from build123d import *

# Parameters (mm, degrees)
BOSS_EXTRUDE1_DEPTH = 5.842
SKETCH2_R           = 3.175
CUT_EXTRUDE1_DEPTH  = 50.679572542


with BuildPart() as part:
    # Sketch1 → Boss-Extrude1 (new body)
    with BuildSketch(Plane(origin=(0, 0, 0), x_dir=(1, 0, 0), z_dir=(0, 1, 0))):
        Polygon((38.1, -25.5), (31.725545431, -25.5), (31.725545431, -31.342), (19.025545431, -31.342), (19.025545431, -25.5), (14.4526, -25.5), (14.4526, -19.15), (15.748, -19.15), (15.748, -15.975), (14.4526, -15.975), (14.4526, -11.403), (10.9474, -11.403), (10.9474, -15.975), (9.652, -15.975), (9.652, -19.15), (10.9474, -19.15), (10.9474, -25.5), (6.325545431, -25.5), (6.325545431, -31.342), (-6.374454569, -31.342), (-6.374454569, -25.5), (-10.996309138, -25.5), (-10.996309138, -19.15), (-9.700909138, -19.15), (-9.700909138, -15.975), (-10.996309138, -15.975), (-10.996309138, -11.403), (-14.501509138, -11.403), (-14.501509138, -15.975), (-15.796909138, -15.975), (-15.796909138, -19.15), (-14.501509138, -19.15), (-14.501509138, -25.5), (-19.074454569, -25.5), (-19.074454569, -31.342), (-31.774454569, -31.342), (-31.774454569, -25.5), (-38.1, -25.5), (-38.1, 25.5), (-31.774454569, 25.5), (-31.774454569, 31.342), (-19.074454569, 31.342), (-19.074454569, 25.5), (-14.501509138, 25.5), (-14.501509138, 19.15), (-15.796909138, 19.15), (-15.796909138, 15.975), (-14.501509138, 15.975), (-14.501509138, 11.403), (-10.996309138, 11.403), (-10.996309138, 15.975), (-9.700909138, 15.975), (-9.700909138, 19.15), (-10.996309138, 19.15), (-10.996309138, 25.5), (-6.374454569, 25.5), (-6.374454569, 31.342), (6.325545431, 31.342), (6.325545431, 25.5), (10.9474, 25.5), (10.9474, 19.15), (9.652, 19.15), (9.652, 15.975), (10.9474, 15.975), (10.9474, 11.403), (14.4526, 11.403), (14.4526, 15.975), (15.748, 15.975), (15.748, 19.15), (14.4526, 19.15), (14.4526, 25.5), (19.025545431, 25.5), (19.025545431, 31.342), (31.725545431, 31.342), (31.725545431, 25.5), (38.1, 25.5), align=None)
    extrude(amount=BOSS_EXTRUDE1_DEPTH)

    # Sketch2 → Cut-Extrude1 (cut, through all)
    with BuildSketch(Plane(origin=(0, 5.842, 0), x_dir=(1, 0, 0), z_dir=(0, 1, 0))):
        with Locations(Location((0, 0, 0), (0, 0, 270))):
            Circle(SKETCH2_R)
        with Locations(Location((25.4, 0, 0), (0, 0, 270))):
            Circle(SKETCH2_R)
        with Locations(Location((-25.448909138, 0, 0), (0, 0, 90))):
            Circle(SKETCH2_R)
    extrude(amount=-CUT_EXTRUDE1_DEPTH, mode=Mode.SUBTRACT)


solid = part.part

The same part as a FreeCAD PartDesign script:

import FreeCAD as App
import Part
import Sketcher

V = App.Vector
Q = App.Units.Quantity


def add_polygon(sketch, points):
    """Adds a closed chain of lines whose ends are joined by coincident constraints."""
    first, n = sketch.GeometryCount, len(points)
    for a, b in zip(points, points[1:] + points[:1]):
        sketch.addGeometry(Part.LineSegment(App.Vector(*a, 0), App.Vector(*b, 0)), False)
    for i in range(n):
        sketch.addConstraint(Sketcher.Constraint("Coincident", first + i, 2, first + (i + 1) % n, 1))

doc = App.newDocument("Part")
body = doc.addObject("PartDesign::Body", "Body")

# Sketch on XZ plane
sketch1 = body.newObject("Sketcher::SketchObject", "Sketch")
sketch1.AttachmentSupport = (doc.getObject("XZ_Plane"), [""])
sketch1.MapMode = "FlatFace"
add_polygon(sketch1, [(31.7, 25.5), (38.1, 25.5), (38.1, -25.5), (31.7, -25.5), (31.7, -31.3), (19, -31.3), (19, -25.5), (14.5, -25.5), (14.5, -19.1), (15.7, -19.1), (15.7, -16), (14.5, -16), (14.5, -11.4), (10.9, -11.4), (10.9, -16), (9.7, -16), (9.7, -19.1), (10.9, -19.1), (10.9, -25.5), (6.3, -25.5), (6.3, -31.3), (-6.4, -31.3), (-6.4, -25.5), (-11, -25.5), (-11, -19.1), (-9.7, -19.1), (-9.7, -16), (-11, -16), (-11, -11.4), (-14.5, -11.4), (-14.5, -16), (-15.8, -16), (-15.8, -19.1), (-14.5, -19.1), (-14.5, -25.5), (-19.1, -25.5), (-19.1, -31.3), (-31.8, -31.3), (-31.8, -25.5), (-38.1, -25.5), (-38.1, 25.5), (-31.8, 25.5), (-31.8, 31.3), (-19.1, 31.3), (-19.1, 25.5), (-14.5, 25.5), (-14.5, 19.1), (-15.8, 19.1), (-15.8, 16), (-14.5, 16), (-14.5, 11.4), (-11, 11.4), (-11, 16), (-9.7, 16), (-9.7, 19.1), (-11, 19.1), (-11, 25.5), (-6.4, 25.5), (-6.4, 31.3), (6.3, 31.3), (6.3, 25.5), (10.9, 25.5), (10.9, 19.1), (9.7, 19.1), (9.7, 16), (10.9, 16), (10.9, 11.4), (14.5, 11.4), (14.5, 16), (15.7, 16), (15.7, 19.1), (14.5, 19.1), (14.5, 25.5), (19, 25.5), (19, 31.3), (31.7, 31.3)])  # lines 0-75
sketch1.addConstraint(Sketcher.Constraint("Horizontal", 0))
sketch1.addConstraint(Sketcher.Constraint("Vertical", 1))
sketch1.addConstraint(Sketcher.Constraint("Horizontal", 2))
sketch1.addConstraint(Sketcher.Constraint("Vertical", 3))
sketch1.addConstraint(Sketcher.Constraint("Horizontal", 4))
sketch1.addConstraint(Sketcher.Constraint("Vertical", 5))
sketch1.addConstraint(Sketcher.Constraint("Horizontal", 6))
sketch1.addConstraint(Sketcher.Constraint("Vertical", 7))
sketch1.addConstraint(Sketcher.Constraint("Horizontal", 8))
sketch1.addConstraint(Sketcher.Constraint("Vertical", 9))
sketch1.addConstraint(Sketcher.Constraint("Horizontal", 10))
sketch1.addConstraint(Sketcher.Constraint("Vertical", 11))
sketch1.addConstraint(Sketcher.Constraint("Horizontal", 12))
sketch1.addConstraint(Sketcher.Constraint("Vertical", 13))
sketch1.addConstraint(Sketcher.Constraint("Horizontal", 14))
sketch1.addConstraint(Sketcher.Constraint("Vertical", 15))
sketch1.addConstraint(Sketcher.Constraint("Horizontal", 16))
sketch1.addConstraint(Sketcher.Constraint("Vertical", 17))
sketch1.addConstraint(Sketcher.Constraint("Horizontal", 18))
sketch1.addConstraint(Sketcher.Constraint("Vertical", 19))
sketch1.addConstraint(Sketcher.Constraint("Horizontal", 20))
sketch1.addConstraint(Sketcher.Constraint("Vertical", 21))
sketch1.addConstraint(Sketcher.Constraint("Horizontal", 22))
sketch1.addConstraint(Sketcher.Constraint("Vertical", 23))
sketch1.addConstraint(Sketcher.Constraint("Horizontal", 24))
sketch1.addConstraint(Sketcher.Constraint("Vertical", 25))
sketch1.addConstraint(Sketcher.Constraint("Horizontal", 26))
sketch1.addConstraint(Sketcher.Constraint("Vertical", 27))
sketch1.addConstraint(Sketcher.Constraint("Horizontal", 28))
sketch1.addConstraint(Sketcher.Constraint("Vertical", 29))
sketch1.addConstraint(Sketcher.Constraint("Horizontal", 30))
sketch1.addConstraint(Sketcher.Constraint("Vertical", 31))
sketch1.addConstraint(Sketcher.Constraint("Horizontal", 32))
sketch1.addConstraint(Sketcher.Constraint("Vertical", 33))
sketch1.addConstraint(Sketcher.Constraint("Horizontal", 34))
sketch1.addConstraint(Sketcher.Constraint("Vertical", 35))
sketch1.addConstraint(Sketcher.Constraint("Horizontal", 36))
sketch1.addConstraint(Sketcher.Constraint("Vertical", 37))
sketch1.addConstraint(Sketcher.Constraint("Horizontal", 38))
sketch1.addConstraint(Sketcher.Constraint("Vertical", 39))
sketch1.addConstraint(Sketcher.Constraint("Horizontal", 40))
sketch1.addConstraint(Sketcher.Constraint("Vertical", 41))
sketch1.addConstraint(Sketcher.Constraint("Horizontal", 42))
sketch1.addConstraint(Sketcher.Constraint("Vertical", 43))
sketch1.addConstraint(Sketcher.Constraint("Horizontal", 44))
sketch1.addConstraint(Sketcher.Constraint("Vertical", 45))
sketch1.addConstraint(Sketcher.Constraint("Horizontal", 46))
sketch1.addConstraint(Sketcher.Constraint("Vertical", 47))
sketch1.addConstraint(Sketcher.Constraint("Horizontal", 48))
sketch1.addConstraint(Sketcher.Constraint("Vertical", 49))
sketch1.addConstraint(Sketcher.Constraint("Horizontal", 50))
sketch1.addConstraint(Sketcher.Constraint("Vertical", 51))
sketch1.addConstraint(Sketcher.Constraint("Horizontal", 52))
sketch1.addConstraint(Sketcher.Constraint("Vertical", 53))
sketch1.addConstraint(Sketcher.Constraint("Horizontal", 54))
sketch1.addConstraint(Sketcher.Constraint("Vertical", 55))
sketch1.addConstraint(Sketcher.Constraint("Horizontal", 56))
sketch1.addConstraint(Sketcher.Constraint("Vertical", 57))
sketch1.addConstraint(Sketcher.Constraint("Horizontal", 58))
sketch1.addConstraint(Sketcher.Constraint("Vertical", 59))
sketch1.addConstraint(Sketcher.Constraint("Horizontal", 60))
sketch1.addConstraint(Sketcher.Constraint("Vertical", 61))
sketch1.addConstraint(Sketcher.Constraint("Horizontal", 62))
sketch1.addConstraint(Sketcher.Constraint("Vertical", 63))
sketch1.addConstraint(Sketcher.Constraint("Horizontal", 64))
sketch1.addConstraint(Sketcher.Constraint("Vertical", 65))
sketch1.addConstraint(Sketcher.Constraint("Horizontal", 66))
sketch1.addConstraint(Sketcher.Constraint("Vertical", 67))
sketch1.addConstraint(Sketcher.Constraint("Horizontal", 68))
sketch1.addConstraint(Sketcher.Constraint("Vertical", 69))
sketch1.addConstraint(Sketcher.Constraint("Horizontal", 70))
sketch1.addConstraint(Sketcher.Constraint("Vertical", 71))
sketch1.addConstraint(Sketcher.Constraint("Horizontal", 72))
sketch1.addConstraint(Sketcher.Constraint("Vertical", 73))
sketch1.addConstraint(Sketcher.Constraint("Horizontal", 74))
sketch1.addConstraint(Sketcher.Constraint("Vertical", 75))
sketch1.addConstraint(Sketcher.Constraint("Symmetric", 0, 2, 38, 2, -1, 1))
sketch1.addConstraint(Sketcher.Constraint("Symmetric", 37, 2, 40, 2, -1))
sketch1.addConstraint(Sketcher.Constraint("Symmetric", 35, 2, 42, 2, -1))
sketch1.addConstraint(Sketcher.Constraint("Symmetric", 33, 2, 44, 2, -1))
sketch1.addConstraint(Sketcher.Constraint("Symmetric", 31, 2, 46, 2, -1))
sketch1.addConstraint(Sketcher.Constraint("Symmetric", 29, 2, 48, 2, -1))
sketch1.addConstraint(Sketcher.Constraint("Symmetric", 27, 2, 50, 2, -1))
sketch1.addConstraint(Sketcher.Constraint("Symmetric", 25, 2, 52, 2, -1))
sketch1.addConstraint(Sketcher.Constraint("Symmetric", 23, 2, 54, 2, -1))
sketch1.addConstraint(Sketcher.Constraint("Symmetric", 21, 2, 56, 2, -1))
sketch1.addConstraint(Sketcher.Constraint("Symmetric", 19, 2, 58, 2, -1))
sketch1.addConstraint(Sketcher.Constraint("Symmetric", 17, 2, 60, 2, -1))
sketch1.addConstraint(Sketcher.Constraint("Symmetric", 15, 2, 62, 2, -1))
sketch1.addConstraint(Sketcher.Constraint("Symmetric", 13, 2, 64, 2, -1))
sketch1.addConstraint(Sketcher.Constraint("Symmetric", 11, 2, 66, 2, -1))
sketch1.addConstraint(Sketcher.Constraint("Symmetric", 9, 2, 68, 2, -1))
sketch1.addConstraint(Sketcher.Constraint("Symmetric", 7, 2, 70, 2, -1))
sketch1.addConstraint(Sketcher.Constraint("Symmetric", 5, 2, 72, 2, -1))
sketch1.addConstraint(Sketcher.Constraint("Symmetric", 3, 2, 74, 2, -1))
sketch1.addConstraint(Sketcher.Constraint("Horizontal", 2, 2, 5, 2))
sketch1.addConstraint(Sketcher.Constraint("Horizontal", 10, 2, 13, 2))
sketch1.addConstraint(Sketcher.Constraint("Horizontal", 8, 2, 15, 2))
sketch1.addConstraint(Sketcher.Constraint("Horizontal", 6, 2, 17, 2))
sketch1.addConstraint(Sketcher.Constraint("Horizontal", 4, 2, 19, 2))
sketch1.addConstraint(Sketcher.Constraint("Horizontal", 18, 2, 21, 2))
sketch1.addConstraint(Sketcher.Constraint("Horizontal", 16, 2, 23, 2))
sketch1.addConstraint(Sketcher.Constraint("Horizontal", 14, 2, 25, 2))
sketch1.addConstraint(Sketcher.Constraint("Horizontal", 12, 2, 27, 2))
sketch1.addConstraint(Sketcher.Constraint("Horizontal", 26, 2, 29, 2))
sketch1.addConstraint(Sketcher.Constraint("Horizontal", 24, 2, 31, 2))
sketch1.addConstraint(Sketcher.Constraint("Horizontal", 22, 2, 33, 2))
sketch1.addConstraint(Sketcher.Constraint("Horizontal", 20, 2, 35, 2))
sketch1.addConstraint(Sketcher.Constraint("Horizontal", 34, 2, 37, 2))
sketch1.addConstraint(Sketcher.Constraint("Vertical", 7, 2, 10, 2))
sketch1.addConstraint(Sketcher.Constraint("Vertical", 13, 2, 16, 2))
sketch1.addConstraint(Sketcher.Constraint("Vertical", 23, 2, 26, 2))
sketch1.addConstraint(Sketcher.Constraint("Vertical", 29, 2, 32, 2))
sketch1.addConstraint(Sketcher.Constraint("Equal", 10, 14))
sketch1.addConstraint(Sketcher.Constraint("Equal", 4, 20))
sketch1.addConstraint(Sketcher.Constraint("Equal", 18, 22))
sketch1.addConstraint(Sketcher.Constraint("Equal", 16, 24))
sketch1.addConstraint(Sketcher.Constraint("Equal", 12, 28))
sketch1.addConstraint(Sketcher.Constraint("Equal", 26, 30))
sketch1.addConstraint(Sketcher.Constraint("Equal", 6, 34))
sketch1.addConstraint(Sketcher.Constraint("Equal", 20, 36))
sketch1.addConstraint(Sketcher.Constraint("DistanceX", 4, 2, 4, 1, Q("0.5 in")))
sketch1.addConstraint(Sketcher.Constraint("DistanceY", 3, 2, 3, 1, Q("0.23 in")))
sketch1.addConstraint(Sketcher.Constraint("DistanceY", 7, 1, 7, 2, Q("0.25 in")))
sketch1.addConstraint(Sketcher.Constraint("DistanceY", 11, 1, 11, 2, Q("0.18 in")))
sketch1.addConstraint(Sketcher.Constraint("DistanceX", -1, 1, 0, 2, Q("1.5 in")))
sketch1.addConstraint(Sketcher.Constraint("DistanceX", 8, 1, 8, 2, Q("0.051 in")))
sketch1.addConstraint(Sketcher.Constraint("DistanceX", 12, 2, 12, 1, Q("0.138 in")))
sketch1.addConstraint(Sketcher.Constraint("DistanceY", 9, 1, 9, 2, Q("0.125 in")))
sketch1.addConstraint(Sketcher.Constraint("DistanceX", -1, 1, 8, 2, Q("0.62 in")))
sketch1.addConstraint(Sketcher.Constraint("DistanceY", 1, 2, 1, 1, 51.0))
sketch1.addConstraint(Sketcher.Constraint("DistanceX", 0, 1, 0, 2, 6.374455))
sketch1.addConstraint(Sketcher.Constraint("DistanceX", 18, 2, 18, 1, 4.621855))
pad1 = body.newObject("PartDesign::Pad", "Pad")
pad1.Profile = sketch1
pad1.Length = Q("0.23 in")
pad1.Reversed = True

# Sketch on XZ plane
sketch2 = body.newObject("Sketcher::SketchObject", "Sketch001")
sketch2.AttachmentSupport = (doc.getObject("XZ_Plane"), [""])
sketch2.MapMode = "FlatFace"
sketch2.AttachmentOffset = App.Placement(V(0, 0, -0.23 * 25.4), App.Rotation())
sketch2.addGeometry(Part.Circle(V(0, 0, 0), V(0, 0, 1), 3.2), False)
sketch2.addGeometry(Part.Circle(V(25.4, 0, 0), V(0, 0, 1), 3.2), False)
sketch2.addGeometry(Part.Circle(V(-25.4, 0, 0), V(0, 0, 1), 3.2), False)
sketch2.addConstraint(Sketcher.Constraint("Coincident", 0, 3, -1, 1))
sketch2.addConstraint(Sketcher.Constraint("Equal", 0, 1))
sketch2.addConstraint(Sketcher.Constraint("Equal", 1, 2))
sketch2.addConstraint(Sketcher.Constraint("PointOnObject", 1, 3, -1))
sketch2.addConstraint(Sketcher.Constraint("PointOnObject", 2, 3, -1))
sketch2.addConstraint(Sketcher.Constraint("Diameter", 0, Q("0.25 in")))
sketch2.addConstraint(Sketcher.Constraint("DistanceX", -1, 1, 1, 3, Q("1 in")))
sketch2.addConstraint(Sketcher.Constraint("DistanceX", 2, 3, -1, 1, 25.448909))
pocket1 = body.newObject("PartDesign::Pocket", "Pocket")
pocket1.Profile = sketch2
pocket1.Type = "ThroughAll"
pocket1.Reversed = True

doc.recompute()
